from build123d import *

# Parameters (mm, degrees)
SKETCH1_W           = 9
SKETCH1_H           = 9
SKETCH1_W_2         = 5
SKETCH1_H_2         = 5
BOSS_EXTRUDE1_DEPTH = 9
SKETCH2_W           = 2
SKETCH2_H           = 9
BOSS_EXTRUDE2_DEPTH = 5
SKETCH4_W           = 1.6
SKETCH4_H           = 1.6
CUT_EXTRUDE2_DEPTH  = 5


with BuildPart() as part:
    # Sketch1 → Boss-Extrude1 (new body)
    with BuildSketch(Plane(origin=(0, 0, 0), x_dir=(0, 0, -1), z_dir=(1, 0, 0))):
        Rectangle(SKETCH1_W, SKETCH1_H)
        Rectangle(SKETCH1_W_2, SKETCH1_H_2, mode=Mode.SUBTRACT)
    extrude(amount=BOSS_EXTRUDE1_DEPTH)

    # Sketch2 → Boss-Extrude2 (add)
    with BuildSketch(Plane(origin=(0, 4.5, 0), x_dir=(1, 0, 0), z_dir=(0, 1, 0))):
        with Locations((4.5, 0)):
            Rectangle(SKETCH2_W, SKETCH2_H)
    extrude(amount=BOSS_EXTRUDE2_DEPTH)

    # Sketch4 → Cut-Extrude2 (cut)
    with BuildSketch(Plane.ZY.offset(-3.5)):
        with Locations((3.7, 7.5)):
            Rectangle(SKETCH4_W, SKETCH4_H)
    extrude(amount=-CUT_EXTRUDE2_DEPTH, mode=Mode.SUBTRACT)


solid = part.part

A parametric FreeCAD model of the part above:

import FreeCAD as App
import Part
import Sketcher
from FreeCAD import Vector

doc = App.newDocument("Part")
body = doc.addObject("PartDesign::Body", "Body")

# Sketch on YZ plane
sketch1 = body.newObject("Sketcher::SketchObject", "Sketch")
sketch1.AttachmentSupport = (doc.getObject("YZ_Plane"), [""])
sketch1.MapMode = "FlatFace"
sketch1.addGeometry([
    Part.LineSegment(Vector(4.5, 4.5, 0), Vector(-4.5, 4.5, 0)),  # 0
    Part.LineSegment(Vector(-4.5, 4.5, 0), Vector(-4.5, -4.5, 0)),  # 1
    Part.LineSegment(Vector(-4.5, -4.5, 0), Vector(4.5, -4.5, 0)),  # 2
    Part.LineSegment(Vector(4.5, -4.5, 0), Vector(4.5, 4.5, 0)),  # 3
    Part.LineSegment(Vector(-2.5, -2.5, 0), Vector(-2.5, 2.5, 0)),  # 4
    Part.LineSegment(Vector(-2.5, 2.5, 0), Vector(2.5, 2.5, 0)),  # 5
    Part.LineSegment(Vector(2.5, 2.5, 0), Vector(2.5, -2.5, 0)),  # 6
    Part.LineSegment(Vector(2.5, -2.5, 0), Vector(-2.5, -2.5, 0)),  # 7
], False)
sketch1.addConstraint([
    Sketcher.Constraint("Coincident", 0, 2, 1, 1),
    Sketcher.Constraint("Coincident", 1, 2, 2, 1),
    Sketcher.Constraint("Coincident", 2, 2, 3, 1),
    Sketcher.Constraint("Coincident", 3, 2, 0, 1),
    Sketcher.Constraint("Coincident", 4, 2, 5, 1),
    Sketcher.Constraint("Coincident", 5, 2, 6, 1),
    Sketcher.Constraint("Coincident", 6, 2, 7, 1),
    Sketcher.Constraint("Coincident", 7, 2, 4, 1),
    Sketcher.Constraint("Horizontal", 0),
    Sketcher.Constraint("Vertical", 1),
    Sketcher.Constraint("Horizontal", 2),
    Sketcher.Constraint("Vertical", 3),
    Sketcher.Constraint("Vertical", 4),
    Sketcher.Constraint("Horizontal", 5),
    Sketcher.Constraint("Vertical", 6),
    Sketcher.Constraint("Horizontal", 7),
    Sketcher.Constraint("Symmetric", 0, 2, 2, 2, -1, 1),
    Sketcher.Constraint("Symmetric", 4, 2, 6, 2, -1, 1),
    Sketcher.Constraint("Equal", 2, 1),
    Sketcher.Constraint("Equal", 7, 4),
    Sketcher.Constraint("DistanceX", 0, 2, 0, 1, 9.0),
    Sketcher.Constraint("DistanceX", 5, 1, 5, 2, 5.0),
])
pad1 = body.newObject("PartDesign::Pad", "Pad")
pad1.Profile = sketch1
pad1.Length = 9

# Sketch on XZ plane
sketch2 = body.newObject("Sketcher::SketchObject", "Sketch001")
sketch2.AttachmentSupport = (doc.getObject("XZ_Plane"), [""])
sketch2.MapMode = "FlatFace"
sketch2.AttachmentOffset = App.Placement(Vector(0, 0, -4.5), App.Rotation())
sketch2.addGeometry([
    Part.LineSegment(Vector(3.5, -4.5, 0), Vector(3.5, 4.5, 0)),
    Part.LineSegment(Vector(3.5, 4.5, 0), Vector(5.5, 4.5, 0)),
    Part.LineSegment(Vector(5.5, 4.5, 0), Vector(5.5, -4.5, 0)),
    Part.LineSegment(Vector(5.5, -4.5, 0), Vector(3.5, -4.5, 0)),
], False)
sketch2.addConstraint([
    Sketcher.Constraint("Coincident", 0, 2, 1, 1),
    Sketcher.Constraint("Coincident", 1, 2, 2, 1),
    Sketcher.Constraint("Coincident", 2, 2, 3, 1),
    Sketcher.Constraint("Coincident", 3, 2, 0, 1),
    Sketcher.Constraint("Vertical", 0),
    Sketcher.Constraint("Horizontal", 1),
    Sketcher.Constraint("Vertical", 2),
    Sketcher.Constraint("Horizontal", 3),
    Sketcher.Constraint("DistanceX", 1, 1, 1, 2, 2.0),
    Sketcher.Constraint("DistanceY", 0, 1, 0, 2, 9.0),
    Sketcher.Constraint("DistanceX", -1, 1, 0, 2, 3.5),
    Sketcher.Constraint("DistanceY", -1, 1, 0, 2, 4.5),
])
pad2 = body.newObject("PartDesign::Pad", "Pad001")
pad2.Profile = sketch2
pad2.Length = 5
pad2.Reversed = True

# Sketch on YZ plane
sketch3 = body.newObject("Sketcher::SketchObject", "Sketch002")
sketch3.AttachmentSupport = (doc.getObject("YZ_Plane"), [""])
sketch3.MapMode = "FlatFace"
sketch3.AttachmentOffset = App.Placement(Vector(0, 0, 3.5), App.Rotation())
sketch3.addGeometry([
    Part.LineSegment(Vector(8.3, 2.9, 0), Vector(6.7, 2.9, 0)),
    Part.LineSegment(Vector(6.7, 2.9, 0), Vector(6.7, 4.5, 0)),
    Part.LineSegment(Vector(6.7, 4.5, 0), Vector(8.3, 4.5, 0)),
    Part.LineSegment(Vector(8.3, 4.5, 0), Vector(8.3, 2.9, 0)),
], False)
sketch3.addConstraint([
    Sketcher.Constraint("Coincident", 0, 2, 1, 1),
    Sketcher.Constraint("Coincident", 1, 2, 2, 1),
    Sketcher.Constraint("Coincident", 2, 2, 3, 1),
    Sketcher.Constraint("Coincident", 3, 2, 0, 1),
    Sketcher.Constraint("Horizontal", 0),
    Sketcher.Constraint("Vertical", 1),
    Sketcher.Constraint("Horizontal", 2),
    Sketcher.Constraint("Vertical", 3),
    Sketcher.Constraint("Equal", 2, 1),
    Sketcher.Constraint("DistanceX", 0, 2, 0, 1, 1.6),
    Sketcher.Constraint("DistanceX", -1, 1, 0, 2, 6.7),
    Sketcher.Constraint("DistanceY", -1, 1, 0, 2, 2.9),
])
pocket1 = body.newObject("PartDesign::Pocket", "Pocket")
pocket1.Profile = sketch3
pocket1.Length = 5
pocket1.Reversed = True

doc.recompute()
